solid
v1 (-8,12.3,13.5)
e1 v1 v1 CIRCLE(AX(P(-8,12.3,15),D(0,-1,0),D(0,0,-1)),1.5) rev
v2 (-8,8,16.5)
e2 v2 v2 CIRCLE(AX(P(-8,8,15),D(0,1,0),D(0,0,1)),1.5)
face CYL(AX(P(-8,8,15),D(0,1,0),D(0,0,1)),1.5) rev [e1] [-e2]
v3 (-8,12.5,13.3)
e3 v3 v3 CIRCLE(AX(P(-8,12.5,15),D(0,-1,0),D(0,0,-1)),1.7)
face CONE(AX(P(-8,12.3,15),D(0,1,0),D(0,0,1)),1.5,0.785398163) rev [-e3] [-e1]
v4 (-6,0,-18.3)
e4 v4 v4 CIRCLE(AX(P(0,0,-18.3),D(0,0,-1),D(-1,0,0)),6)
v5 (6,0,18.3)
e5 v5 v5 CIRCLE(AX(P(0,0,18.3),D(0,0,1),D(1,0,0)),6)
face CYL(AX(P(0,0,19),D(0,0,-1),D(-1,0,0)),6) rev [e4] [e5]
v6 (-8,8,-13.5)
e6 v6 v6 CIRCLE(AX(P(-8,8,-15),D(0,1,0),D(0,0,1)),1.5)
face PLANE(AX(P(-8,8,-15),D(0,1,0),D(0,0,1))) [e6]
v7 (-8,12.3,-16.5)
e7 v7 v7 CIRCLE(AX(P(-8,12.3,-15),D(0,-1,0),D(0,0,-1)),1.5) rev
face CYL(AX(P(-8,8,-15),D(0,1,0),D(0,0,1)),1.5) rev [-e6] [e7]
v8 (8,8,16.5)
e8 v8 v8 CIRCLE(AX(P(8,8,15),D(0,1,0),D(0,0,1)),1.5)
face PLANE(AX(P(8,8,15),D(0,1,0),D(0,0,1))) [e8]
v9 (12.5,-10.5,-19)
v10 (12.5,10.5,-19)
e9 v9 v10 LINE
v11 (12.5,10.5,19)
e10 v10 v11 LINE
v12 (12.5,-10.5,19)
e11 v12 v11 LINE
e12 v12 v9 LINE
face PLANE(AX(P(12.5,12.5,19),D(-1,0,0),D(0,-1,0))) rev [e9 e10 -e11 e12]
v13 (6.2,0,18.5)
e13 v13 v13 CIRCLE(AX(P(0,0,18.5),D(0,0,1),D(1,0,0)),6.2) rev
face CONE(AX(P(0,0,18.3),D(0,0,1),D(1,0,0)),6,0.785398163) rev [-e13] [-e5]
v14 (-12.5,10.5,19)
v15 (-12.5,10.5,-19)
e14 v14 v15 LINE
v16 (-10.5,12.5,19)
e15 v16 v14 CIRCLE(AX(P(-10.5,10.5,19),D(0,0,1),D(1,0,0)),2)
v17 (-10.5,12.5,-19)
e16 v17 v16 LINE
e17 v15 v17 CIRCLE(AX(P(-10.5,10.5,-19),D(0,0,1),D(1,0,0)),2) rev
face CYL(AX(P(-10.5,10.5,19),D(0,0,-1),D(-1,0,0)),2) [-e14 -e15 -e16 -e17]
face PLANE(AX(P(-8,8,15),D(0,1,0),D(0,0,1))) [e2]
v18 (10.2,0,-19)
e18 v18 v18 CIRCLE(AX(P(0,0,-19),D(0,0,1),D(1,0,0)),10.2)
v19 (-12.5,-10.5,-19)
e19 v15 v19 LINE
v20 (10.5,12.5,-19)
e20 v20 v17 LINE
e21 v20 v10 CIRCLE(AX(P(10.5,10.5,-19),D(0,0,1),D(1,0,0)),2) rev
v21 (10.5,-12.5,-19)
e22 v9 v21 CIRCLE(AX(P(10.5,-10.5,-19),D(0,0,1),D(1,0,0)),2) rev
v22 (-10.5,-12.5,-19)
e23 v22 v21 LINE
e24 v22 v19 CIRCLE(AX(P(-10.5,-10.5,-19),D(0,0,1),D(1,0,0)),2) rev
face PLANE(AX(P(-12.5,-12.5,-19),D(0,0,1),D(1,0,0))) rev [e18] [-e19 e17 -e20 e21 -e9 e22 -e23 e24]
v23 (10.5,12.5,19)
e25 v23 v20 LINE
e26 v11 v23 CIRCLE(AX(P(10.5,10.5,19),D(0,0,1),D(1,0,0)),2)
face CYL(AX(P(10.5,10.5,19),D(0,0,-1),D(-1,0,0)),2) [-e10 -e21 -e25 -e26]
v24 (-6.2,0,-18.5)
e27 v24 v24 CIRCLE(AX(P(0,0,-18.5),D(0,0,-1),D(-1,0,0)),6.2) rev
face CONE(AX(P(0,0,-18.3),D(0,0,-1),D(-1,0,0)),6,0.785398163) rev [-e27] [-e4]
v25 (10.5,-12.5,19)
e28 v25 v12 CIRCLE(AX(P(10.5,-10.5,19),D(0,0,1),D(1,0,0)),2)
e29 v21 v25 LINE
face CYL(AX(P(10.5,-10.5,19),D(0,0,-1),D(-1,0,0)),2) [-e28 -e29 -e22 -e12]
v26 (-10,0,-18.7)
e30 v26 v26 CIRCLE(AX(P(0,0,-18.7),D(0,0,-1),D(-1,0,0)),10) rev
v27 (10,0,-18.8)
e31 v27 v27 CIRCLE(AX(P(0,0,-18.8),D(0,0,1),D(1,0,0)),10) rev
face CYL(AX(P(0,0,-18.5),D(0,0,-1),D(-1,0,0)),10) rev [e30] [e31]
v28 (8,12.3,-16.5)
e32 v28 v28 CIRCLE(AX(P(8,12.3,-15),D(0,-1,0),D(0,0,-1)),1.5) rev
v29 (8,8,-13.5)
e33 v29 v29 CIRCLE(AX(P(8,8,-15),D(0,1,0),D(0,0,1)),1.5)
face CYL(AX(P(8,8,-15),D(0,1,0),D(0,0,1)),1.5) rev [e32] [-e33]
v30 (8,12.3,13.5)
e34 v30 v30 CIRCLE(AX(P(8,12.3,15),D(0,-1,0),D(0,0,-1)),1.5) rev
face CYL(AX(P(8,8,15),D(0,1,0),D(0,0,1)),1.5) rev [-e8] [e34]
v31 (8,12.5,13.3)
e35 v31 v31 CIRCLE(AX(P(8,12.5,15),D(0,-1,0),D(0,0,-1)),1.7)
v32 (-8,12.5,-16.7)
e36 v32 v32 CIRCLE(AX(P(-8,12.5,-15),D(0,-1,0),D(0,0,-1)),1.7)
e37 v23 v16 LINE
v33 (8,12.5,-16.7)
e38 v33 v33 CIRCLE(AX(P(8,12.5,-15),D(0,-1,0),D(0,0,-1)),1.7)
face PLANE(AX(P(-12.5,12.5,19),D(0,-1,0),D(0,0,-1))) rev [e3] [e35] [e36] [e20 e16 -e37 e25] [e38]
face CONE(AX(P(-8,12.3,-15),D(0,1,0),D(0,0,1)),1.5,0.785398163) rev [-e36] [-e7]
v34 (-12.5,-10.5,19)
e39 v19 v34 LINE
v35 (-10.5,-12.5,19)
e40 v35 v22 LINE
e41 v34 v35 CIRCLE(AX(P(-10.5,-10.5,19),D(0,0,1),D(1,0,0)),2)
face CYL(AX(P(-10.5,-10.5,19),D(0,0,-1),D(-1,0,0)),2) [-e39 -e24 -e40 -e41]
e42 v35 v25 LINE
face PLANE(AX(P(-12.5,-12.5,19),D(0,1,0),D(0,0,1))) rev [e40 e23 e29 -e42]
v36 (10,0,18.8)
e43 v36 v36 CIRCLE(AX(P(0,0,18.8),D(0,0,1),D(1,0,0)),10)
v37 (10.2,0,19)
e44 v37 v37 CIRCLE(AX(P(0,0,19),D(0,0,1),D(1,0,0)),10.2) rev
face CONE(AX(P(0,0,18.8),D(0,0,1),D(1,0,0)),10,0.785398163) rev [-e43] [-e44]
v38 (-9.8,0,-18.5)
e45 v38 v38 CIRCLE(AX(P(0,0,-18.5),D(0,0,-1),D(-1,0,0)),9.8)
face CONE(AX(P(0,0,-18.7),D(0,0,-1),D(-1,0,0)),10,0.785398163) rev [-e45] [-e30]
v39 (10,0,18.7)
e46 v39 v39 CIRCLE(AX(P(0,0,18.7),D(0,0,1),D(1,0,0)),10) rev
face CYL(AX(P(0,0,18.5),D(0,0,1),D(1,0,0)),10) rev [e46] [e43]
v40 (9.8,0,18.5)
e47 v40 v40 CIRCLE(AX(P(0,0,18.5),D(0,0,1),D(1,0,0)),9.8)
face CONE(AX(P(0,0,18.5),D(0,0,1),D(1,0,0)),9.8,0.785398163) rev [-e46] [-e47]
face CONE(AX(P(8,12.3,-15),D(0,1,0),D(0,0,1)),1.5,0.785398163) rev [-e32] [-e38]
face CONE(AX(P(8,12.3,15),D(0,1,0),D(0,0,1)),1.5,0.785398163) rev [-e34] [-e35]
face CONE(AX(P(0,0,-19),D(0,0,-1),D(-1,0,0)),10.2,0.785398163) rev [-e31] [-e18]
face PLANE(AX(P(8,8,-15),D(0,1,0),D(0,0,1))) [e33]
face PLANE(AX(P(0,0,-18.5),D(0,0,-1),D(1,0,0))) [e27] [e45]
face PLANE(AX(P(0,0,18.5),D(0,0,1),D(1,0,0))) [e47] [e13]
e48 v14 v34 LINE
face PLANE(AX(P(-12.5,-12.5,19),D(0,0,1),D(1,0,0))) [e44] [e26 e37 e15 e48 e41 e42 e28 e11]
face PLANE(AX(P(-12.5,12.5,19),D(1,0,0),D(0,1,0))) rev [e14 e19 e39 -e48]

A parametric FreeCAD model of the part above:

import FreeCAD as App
import Part
import Sketcher


def edges_at(feature, points):
    """Names of the edges that pass closest to the given points."""
    edges = feature.Shape.Edges
    near = lambda p: min(range(len(edges)), key=lambda i: edges[i].distToShape(Part.Vertex(*p))[0])
    return sorted({f"Edge{near(p) + 1}" for p in points})

doc = App.newDocument("Part")
body = doc.addObject("PartDesign::Body", "Body")

# Sketch on XY plane
sketch1 = doc.addObject("Sketcher::SketchObject", "Sketch")
body.addObject(sketch1)
sketch1.AttachmentSupport = (doc.XY_Plane, [""])
sketch1.MapMode = "FlatFace"
sketch1.addGeometry([
    Part.LineSegment(App.Vector(-12, 12, 0), App.Vector(-12, -12, 0)),  # 0
    Part.LineSegment(App.Vector(-12, -12, 0), App.Vector(12, -12, 0)),  # 1
    Part.LineSegment(App.Vector(12, -12, 0), App.Vector(12, 12, 0)),  # 2
    Part.LineSegment(App.Vector(12, 12, 0), App.Vector(-12, 12, 0)),  # 3
    Part.Circle(App.Vector(0, 0, 0), App.Vector(0, 0, 1), 6),  # 4
], False)
sketch1.addConstraint([
    Sketcher.Constraint("Coincident", 0, 2, 1, 1),
    Sketcher.Constraint("Coincident", 1, 2, 2, 1),
    Sketcher.Constraint("Coincident", 2, 2, 3, 1),
    Sketcher.Constraint("Coincident", 3, 2, 0, 1),
    Sketcher.Constraint("Vertical", 0),
    Sketcher.Constraint("Horizontal", 1),
    Sketcher.Constraint("Vertical", 2),
    Sketcher.Constraint("Horizontal", 3),
    Sketcher.Constraint("Coincident", 4, 3, -1, 1),
    Sketcher.Constraint("Symmetric", 0, 2, 2, 2, -1, 1),
    Sketcher.Constraint("Equal", 3, 0),
    Sketcher.Constraint("Diameter", 4, 12.0),
    Sketcher.Constraint("DistanceX", 1, 1, 1, 2, 25.0),
])
pad1 = doc.addObject("PartDesign::Pad", "Pad")
body.addObject(pad1)
pad1.Profile = sketch1
pad1.Length = 38
pad1.Midplane = True

# Sketch on XY plane
sketch2 = doc.addObject("Sketcher::SketchObject", "Sketch001")
body.addObject(sketch2)
sketch2.AttachmentSupport = (doc.XY_Plane, [""])
sketch2.MapMode = "FlatFace"
sketch2.AttachmentOffset = App.Placement(App.Vector(0, 0, 19), App.Rotation())
sketch2.addGeometry(Part.Circle(App.Vector(0, 0, 0), App.Vector(0, 0, 1), 10), False)
sketch2.addConstraint([
    Sketcher.Constraint("Coincident", 0, 3, -1, 1),
    Sketcher.Constraint("Diameter", 0, 20.0),
])
pocket1 = doc.addObject("PartDesign::Pocket", "Pocket")
body.addObject(pocket1)
pocket1.Profile = sketch2
pocket1.Length = 0.5
doc.recompute()

mirrored = doc.addObject("PartDesign::Mirrored", "Mirrored")
body.addObject(mirrored)
mirrored.Originals = [pocket1]
mirrored.MirrorPlane = (doc.XY_Plane, [""])
body.Tip = mirrored
doc.recompute()

fillet = doc.addObject("PartDesign::Fillet", "Fillet")
body.addObject(fillet)
fillet.Base = (mirrored, edges_at(mirrored, [
    (-12.5, 12.5, 0),
    (12.5, 12.5, 0),
    (12.5, -12.5, 0),
    (-12.5, -12.5, 0),
]))
fillet.Radius = 2

# Sketch on XZ plane
sketch3 = doc.addObject("Sketcher::SketchObject", "Sketch002")
body.addObject(sketch3)
sketch3.AttachmentSupport = (doc.XZ_Plane, [""])
sketch3.MapMode = "FlatFace"
sketch3.AttachmentOffset = App.Placement(App.Vector(0, 0, -12.5), App.Rotation())
sketch3.addGeometry([
    Part.Circle(App.Vector(8, 15, 0), App.Vector(0, 0, 1), 1.5),
    Part.Circle(App.Vector(-8, 15, 0), App.Vector(0, 0, 1), 1.5),
    Part.Circle(App.Vector(8, -15, 0), App.Vector(0, 0, 1), 1.5),
    Part.Circle(App.Vector(-8, -15, 0), App.Vector(0, 0, 1), 1.5),
], False)
sketch3.addConstraint([
    Sketcher.Constraint("Equal", 0, 1),
    Sketcher.Constraint("Equal", 1, 2),
    Sketcher.Constraint("Equal", 2, 3),
    Sketcher.Constraint("Symmetric", 1, 3, 2, 3, -1, 1),
    Sketcher.Constraint("Symmetric", 0, 3, 3, 3, -1, 1),
    Sketcher.Constraint("Symmetric", 0, 3, 1, 3, -2),
    Sketcher.Constraint("Diameter", 0, 3.0),
    Sketcher.Constraint("DistanceX", -1, 1, 0, 3, 8.0),
    Sketcher.Constraint("DistanceY", -1, 1, 0, 3, 15.0),
])
pocket2 = doc.addObject("PartDesign::Pocket", "Pocket001")
body.addObject(pocket2)
pocket2.Profile = sketch3
pocket2.Length = 4.5
pocket2.Reversed = True
doc.recompute()

chamfer = doc.addObject("PartDesign::Chamfer", "Chamfer")
body.addObject(chamfer)
chamfer.Base = (pocket2, edges_at(pocket2, [
    (-10, 0, 18.5),
    (-6, 0, 18.5),
    (-10, 0, 19),
    (-10, 0, -19),
    (-6, 0, -18.5),
    (-10, 0, -18.5),
    (8, 12.5, 13.5),
    (-8, 12.5, 13.5),
    (8, 12.5, -16.5),
    (-8, 12.5, -16.5),
]))
chamfer.Size = 0.2

doc.recompute()
